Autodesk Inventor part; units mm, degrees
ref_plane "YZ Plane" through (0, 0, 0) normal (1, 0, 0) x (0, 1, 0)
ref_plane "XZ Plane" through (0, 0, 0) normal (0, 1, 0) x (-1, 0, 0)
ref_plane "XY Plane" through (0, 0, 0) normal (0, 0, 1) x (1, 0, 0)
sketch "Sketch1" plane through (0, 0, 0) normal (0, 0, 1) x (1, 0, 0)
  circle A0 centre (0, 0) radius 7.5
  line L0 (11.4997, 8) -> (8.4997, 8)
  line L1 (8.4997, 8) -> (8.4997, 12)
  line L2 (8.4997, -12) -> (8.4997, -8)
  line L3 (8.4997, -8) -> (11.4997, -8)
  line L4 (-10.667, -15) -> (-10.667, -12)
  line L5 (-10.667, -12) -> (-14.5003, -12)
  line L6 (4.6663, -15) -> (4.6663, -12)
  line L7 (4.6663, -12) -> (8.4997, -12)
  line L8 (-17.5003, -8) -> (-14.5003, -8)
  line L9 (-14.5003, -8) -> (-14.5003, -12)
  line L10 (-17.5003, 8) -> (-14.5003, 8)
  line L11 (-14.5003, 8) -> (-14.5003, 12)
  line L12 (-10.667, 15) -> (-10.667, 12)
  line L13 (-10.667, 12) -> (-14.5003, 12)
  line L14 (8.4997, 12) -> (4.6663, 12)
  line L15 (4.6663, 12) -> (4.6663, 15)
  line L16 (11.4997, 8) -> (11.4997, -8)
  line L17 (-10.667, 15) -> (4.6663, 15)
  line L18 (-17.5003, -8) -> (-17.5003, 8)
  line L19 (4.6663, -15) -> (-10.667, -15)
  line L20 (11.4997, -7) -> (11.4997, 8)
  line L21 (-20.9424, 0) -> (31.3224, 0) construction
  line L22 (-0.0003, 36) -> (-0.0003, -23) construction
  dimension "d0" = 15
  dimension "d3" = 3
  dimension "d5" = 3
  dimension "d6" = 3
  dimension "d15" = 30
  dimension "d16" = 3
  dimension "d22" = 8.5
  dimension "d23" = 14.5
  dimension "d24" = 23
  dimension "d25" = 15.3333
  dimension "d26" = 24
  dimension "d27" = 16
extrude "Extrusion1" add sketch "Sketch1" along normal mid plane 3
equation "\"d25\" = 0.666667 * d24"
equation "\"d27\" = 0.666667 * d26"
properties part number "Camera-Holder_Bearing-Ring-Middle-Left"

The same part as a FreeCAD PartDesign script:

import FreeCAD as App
import Part
import Sketcher
from FreeCAD import Vector


def add_polygon(sketch, points):
    """Adds a closed chain of lines whose ends are joined by coincident constraints."""
    first, n = sketch.GeometryCount, len(points)
    for a, b in zip(points, points[1:] + points[:1]):
        sketch.addGeometry(Part.LineSegment(App.Vector(*a, 0), App.Vector(*b, 0)), False)
    for i in range(n):
        sketch.addConstraint(Sketcher.Constraint("Coincident", first + i, 2, first + (i + 1) % n, 1))

doc = App.newDocument("Part")
body = doc.addObject("PartDesign::Body", "Body")

sketch1 = doc.addObject("Sketcher::SketchObject", "Sketch")
body.addObject(sketch1)
sketch1.AttachmentSupport = (doc.XY_Plane, [""])
sketch1.MapMode = "FlatFace"
add_polygon(sketch1, [(11.5, -8), (11.5, 8), (8.5, 8), (8.5, 12), (4.7, 12), (4.7, 15), (-10.7, 15), (-10.7, 12), (-14.5, 12), (-14.5, 8), (-17.5, 8), (-17.5, -8), (-14.5, -8), (-14.5, -12), (-10.7, -12), (-10.7, -15), (4.7, -15), (4.7, -12), (8.5, -12), (8.5, -8)])
sketch1.addGeometry(Part.Circle(Vector(0, 0, 0), Vector(0, 0, 1), 7.5), False)
sketch1.addConstraint([
    Sketcher.Constraint("Vertical", 0),
    Sketcher.Constraint("Horizontal", 1),
    Sketcher.Constraint("Vertical", 2),
    Sketcher.Constraint("Horizontal", 3),
    Sketcher.Constraint("Vertical", 4),
    Sketcher.Constraint("Horizontal", 5),
    Sketcher.Constraint("Vertical", 6),
    Sketcher.Constraint("Horizontal", 7),
    Sketcher.Constraint("Vertical", 8),
    Sketcher.Constraint("Horizontal", 9),
    Sketcher.Constraint("Vertical", 10),
    Sketcher.Constraint("Horizontal", 11),
    Sketcher.Constraint("Vertical", 12),
    Sketcher.Constraint("Horizontal", 13),
    Sketcher.Constraint("Vertical", 14),
    Sketcher.Constraint("Horizontal", 15),
    Sketcher.Constraint("Vertical", 16),
    Sketcher.Constraint("Horizontal", 17),
    Sketcher.Constraint("Vertical", 18),
    Sketcher.Constraint("Horizontal", 19),
    Sketcher.Constraint("Coincident", 20, 3, -1, 1),
    Sketcher.Constraint("Symmetric", 8, 2, 11, 2, -1),
    Sketcher.Constraint("Symmetric", 6, 2, 13, 2, -1),
    Sketcher.Constraint("Symmetric", 4, 2, 15, 2, -1),
    Sketcher.Constraint("Symmetric", 2, 2, 17, 2, -1),
    Sketcher.Constraint("Horizontal", 3, 2, 6, 2),
    Sketcher.Constraint("Horizontal", 1, 2, 8, 2),
    Sketcher.Constraint("Horizontal", 11, 2, 18, 2),
    Sketcher.Constraint("Equal", 3, 7),
    Sketcher.Constraint("Equal", 1, 9),
    Sketcher.Constraint("Equal", 19, 4),
    Sketcher.Constraint("Diameter", 20, 15.0),
    Sketcher.Constraint("DistanceX", 1, 2, 1, 1, 3.0),
    Sketcher.Constraint("DistanceY", 0, 1, 0, 2, 16.0),
    Sketcher.Constraint("DistanceY", -1, 1, 4, 2, 15.0),
    Sketcher.Constraint("DistanceX", 5, 2, 5, 1, 15.3333),
    Sketcher.Constraint("DistanceX", -1, 1, 1, 2, 8.4997),
    Sketcher.Constraint("DistanceX", 7, 2, -1, 1, 14.5003),
])
pad1 = doc.addObject("PartDesign::Pad", "Pad")
body.addObject(pad1)
pad1.Profile = sketch1
pad1.Length = 3
pad1.Midplane = True

doc.recompute()
